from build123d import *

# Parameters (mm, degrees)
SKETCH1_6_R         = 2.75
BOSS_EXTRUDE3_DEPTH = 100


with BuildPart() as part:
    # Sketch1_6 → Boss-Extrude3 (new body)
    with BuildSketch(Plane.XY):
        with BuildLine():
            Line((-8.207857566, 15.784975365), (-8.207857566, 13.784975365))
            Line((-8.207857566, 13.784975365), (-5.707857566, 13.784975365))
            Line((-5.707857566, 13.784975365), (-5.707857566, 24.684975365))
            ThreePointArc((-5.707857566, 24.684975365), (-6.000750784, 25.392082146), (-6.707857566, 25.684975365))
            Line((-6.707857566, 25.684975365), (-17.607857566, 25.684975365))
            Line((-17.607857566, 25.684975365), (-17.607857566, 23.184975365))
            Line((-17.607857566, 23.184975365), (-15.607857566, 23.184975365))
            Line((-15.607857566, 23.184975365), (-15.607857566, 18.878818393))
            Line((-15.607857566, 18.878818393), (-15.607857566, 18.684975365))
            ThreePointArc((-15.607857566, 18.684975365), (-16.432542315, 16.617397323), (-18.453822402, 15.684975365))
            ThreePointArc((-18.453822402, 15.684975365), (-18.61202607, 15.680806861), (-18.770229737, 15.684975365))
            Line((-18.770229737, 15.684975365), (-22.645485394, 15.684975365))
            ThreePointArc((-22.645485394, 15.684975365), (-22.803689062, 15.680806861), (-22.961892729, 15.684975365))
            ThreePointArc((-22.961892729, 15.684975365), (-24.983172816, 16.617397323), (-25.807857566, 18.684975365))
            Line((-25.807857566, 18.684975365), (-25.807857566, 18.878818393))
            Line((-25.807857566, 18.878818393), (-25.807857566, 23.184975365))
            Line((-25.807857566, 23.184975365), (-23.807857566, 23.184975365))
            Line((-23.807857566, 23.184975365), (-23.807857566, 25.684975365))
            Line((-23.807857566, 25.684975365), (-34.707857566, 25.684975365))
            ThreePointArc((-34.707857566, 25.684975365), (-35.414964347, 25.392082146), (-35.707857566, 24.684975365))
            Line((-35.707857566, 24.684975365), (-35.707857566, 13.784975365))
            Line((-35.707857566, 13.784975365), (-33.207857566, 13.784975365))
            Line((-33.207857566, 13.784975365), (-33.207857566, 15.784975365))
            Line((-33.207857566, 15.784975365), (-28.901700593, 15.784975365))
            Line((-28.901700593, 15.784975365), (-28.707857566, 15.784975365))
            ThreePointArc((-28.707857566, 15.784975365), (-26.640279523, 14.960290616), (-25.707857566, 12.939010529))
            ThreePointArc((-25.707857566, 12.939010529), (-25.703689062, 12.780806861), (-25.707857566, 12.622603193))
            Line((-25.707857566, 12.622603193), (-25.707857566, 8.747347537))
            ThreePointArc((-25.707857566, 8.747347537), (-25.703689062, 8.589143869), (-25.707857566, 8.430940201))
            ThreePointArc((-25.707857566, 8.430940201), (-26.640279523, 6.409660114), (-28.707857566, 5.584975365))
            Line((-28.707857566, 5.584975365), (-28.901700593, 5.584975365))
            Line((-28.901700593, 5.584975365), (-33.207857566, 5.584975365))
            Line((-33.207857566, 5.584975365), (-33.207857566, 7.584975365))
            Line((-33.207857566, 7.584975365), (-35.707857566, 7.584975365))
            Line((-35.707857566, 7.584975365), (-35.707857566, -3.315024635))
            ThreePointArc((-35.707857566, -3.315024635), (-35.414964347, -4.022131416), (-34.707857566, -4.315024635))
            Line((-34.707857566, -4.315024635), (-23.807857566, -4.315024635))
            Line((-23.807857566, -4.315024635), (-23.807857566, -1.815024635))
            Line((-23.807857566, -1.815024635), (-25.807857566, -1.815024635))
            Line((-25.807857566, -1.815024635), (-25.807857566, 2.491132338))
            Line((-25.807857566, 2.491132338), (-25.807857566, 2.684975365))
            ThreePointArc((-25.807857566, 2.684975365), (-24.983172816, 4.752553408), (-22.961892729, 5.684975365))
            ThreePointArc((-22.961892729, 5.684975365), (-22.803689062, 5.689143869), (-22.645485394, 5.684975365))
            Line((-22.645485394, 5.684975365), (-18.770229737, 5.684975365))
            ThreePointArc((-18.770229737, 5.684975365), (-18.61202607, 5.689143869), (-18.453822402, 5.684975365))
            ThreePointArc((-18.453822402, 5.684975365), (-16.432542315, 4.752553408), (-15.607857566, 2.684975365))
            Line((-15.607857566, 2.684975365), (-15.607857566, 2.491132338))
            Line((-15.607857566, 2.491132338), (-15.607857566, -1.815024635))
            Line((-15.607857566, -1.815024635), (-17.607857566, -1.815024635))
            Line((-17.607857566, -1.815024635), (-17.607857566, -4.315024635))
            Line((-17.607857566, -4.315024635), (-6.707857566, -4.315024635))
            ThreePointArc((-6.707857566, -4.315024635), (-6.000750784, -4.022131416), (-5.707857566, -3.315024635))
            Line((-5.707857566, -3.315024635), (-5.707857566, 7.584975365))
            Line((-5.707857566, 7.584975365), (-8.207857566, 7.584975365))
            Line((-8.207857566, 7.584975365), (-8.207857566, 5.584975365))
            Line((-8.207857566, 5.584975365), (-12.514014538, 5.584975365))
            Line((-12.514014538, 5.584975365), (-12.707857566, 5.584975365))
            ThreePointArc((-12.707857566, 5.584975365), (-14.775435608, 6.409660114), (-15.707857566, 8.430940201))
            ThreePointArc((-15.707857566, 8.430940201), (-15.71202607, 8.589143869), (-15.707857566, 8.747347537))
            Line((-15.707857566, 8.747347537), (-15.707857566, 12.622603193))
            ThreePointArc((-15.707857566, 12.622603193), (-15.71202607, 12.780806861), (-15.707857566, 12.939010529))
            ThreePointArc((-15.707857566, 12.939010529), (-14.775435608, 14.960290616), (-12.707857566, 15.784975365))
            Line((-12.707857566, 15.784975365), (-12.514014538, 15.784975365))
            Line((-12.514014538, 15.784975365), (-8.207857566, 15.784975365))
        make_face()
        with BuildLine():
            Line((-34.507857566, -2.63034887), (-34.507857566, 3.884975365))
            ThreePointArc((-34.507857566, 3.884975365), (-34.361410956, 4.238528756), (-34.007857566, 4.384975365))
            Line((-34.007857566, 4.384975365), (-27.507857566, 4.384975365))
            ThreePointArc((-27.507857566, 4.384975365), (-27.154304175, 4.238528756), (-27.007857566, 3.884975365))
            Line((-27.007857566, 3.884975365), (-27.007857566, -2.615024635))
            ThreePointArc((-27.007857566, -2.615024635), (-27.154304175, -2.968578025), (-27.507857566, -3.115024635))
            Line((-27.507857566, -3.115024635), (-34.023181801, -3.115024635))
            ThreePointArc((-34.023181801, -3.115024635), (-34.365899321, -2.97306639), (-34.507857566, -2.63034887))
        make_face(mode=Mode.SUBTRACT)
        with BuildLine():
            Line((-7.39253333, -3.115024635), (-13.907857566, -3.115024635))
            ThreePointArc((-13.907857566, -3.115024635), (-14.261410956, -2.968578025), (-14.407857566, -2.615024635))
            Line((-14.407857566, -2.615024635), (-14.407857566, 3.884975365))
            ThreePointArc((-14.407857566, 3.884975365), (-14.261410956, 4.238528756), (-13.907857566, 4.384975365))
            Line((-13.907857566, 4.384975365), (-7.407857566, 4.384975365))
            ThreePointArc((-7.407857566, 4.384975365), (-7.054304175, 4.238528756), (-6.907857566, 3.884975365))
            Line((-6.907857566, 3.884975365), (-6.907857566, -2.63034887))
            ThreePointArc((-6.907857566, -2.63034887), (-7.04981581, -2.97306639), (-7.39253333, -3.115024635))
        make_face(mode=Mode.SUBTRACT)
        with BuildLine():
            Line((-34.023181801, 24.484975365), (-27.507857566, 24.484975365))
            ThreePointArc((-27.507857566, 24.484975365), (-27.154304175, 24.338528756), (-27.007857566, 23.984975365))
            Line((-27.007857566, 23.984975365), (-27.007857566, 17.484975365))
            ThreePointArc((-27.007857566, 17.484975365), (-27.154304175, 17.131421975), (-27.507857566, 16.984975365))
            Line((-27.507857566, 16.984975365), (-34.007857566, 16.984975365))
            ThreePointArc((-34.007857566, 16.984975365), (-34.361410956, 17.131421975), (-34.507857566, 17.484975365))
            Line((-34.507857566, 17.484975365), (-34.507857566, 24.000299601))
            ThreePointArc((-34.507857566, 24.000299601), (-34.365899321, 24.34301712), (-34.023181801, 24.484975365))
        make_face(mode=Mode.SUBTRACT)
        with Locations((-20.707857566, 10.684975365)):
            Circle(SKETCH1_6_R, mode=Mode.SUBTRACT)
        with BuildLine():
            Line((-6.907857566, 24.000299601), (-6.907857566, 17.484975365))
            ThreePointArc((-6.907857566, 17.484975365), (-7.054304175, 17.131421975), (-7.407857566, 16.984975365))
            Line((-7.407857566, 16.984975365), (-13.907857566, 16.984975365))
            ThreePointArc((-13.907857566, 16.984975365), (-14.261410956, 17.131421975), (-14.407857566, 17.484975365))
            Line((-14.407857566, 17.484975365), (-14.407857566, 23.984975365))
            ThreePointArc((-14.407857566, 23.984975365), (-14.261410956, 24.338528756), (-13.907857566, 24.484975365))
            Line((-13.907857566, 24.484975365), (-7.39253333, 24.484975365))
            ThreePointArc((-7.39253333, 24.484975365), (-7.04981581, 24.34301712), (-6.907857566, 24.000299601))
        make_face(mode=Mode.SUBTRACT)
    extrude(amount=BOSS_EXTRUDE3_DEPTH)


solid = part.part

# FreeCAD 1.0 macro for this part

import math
import FreeCAD as App
import Part
import Sketcher
from FreeCAD import Vector

doc = App.newDocument("Part")
body = doc.addObject("PartDesign::Body", "Body")

# Sketch on XY plane
sketch1 = doc.addObject("Sketcher::SketchObject", "Sketch")
body.addObject(sketch1)
sketch1.AttachmentSupport = (doc.XY_Plane, [""])
sketch1.MapMode = "FlatFace"
sketch1.addGeometry(Part.LineSegment(Vector(-8.21, 15.78, 0), Vector(-8.21, 13.78, 0)), False)
sketch1.addGeometry(Part.LineSegment(Vector(-8.21, 13.78, 0), Vector(-5.71, 13.78, 0)), False)
sketch1.addGeometry(Part.LineSegment(Vector(-5.71, 13.78, 0), Vector(-5.71, 24.68, 0)), False)
sketch1.addGeometry(Part.ArcOfCircle(Part.Circle(Vector(-6.71, 24.68, 0), Vector(0, 0, 1), 1), math.radians(0), math.radians(90)), False)
sketch1.addGeometry(Part.LineSegment(Vector(-6.71, 25.68, 0), Vector(-17.61, 25.68, 0)), False)
sketch1.addGeometry(Part.LineSegment(Vector(-17.61, 25.68, 0), Vector(-17.61, 23.18, 0)), False)
sketch1.addGeometry(Part.LineSegment(Vector(-17.61, 23.18, 0), Vector(-15.61, 23.18, 0)), False)
sketch1.addGeometry(Part.LineSegment(Vector(-15.61, 23.18, 0), Vector(-15.61, 18.68, 0)), False)
sketch1.addGeometry(Part.ArcOfCircle(Part.Circle(Vector(-18.61, 18.68, 0), Vector(0, 0, 1), 3), math.radians(-87), math.radians(0)), False)
sketch1.addGeometry(Part.ArcOfCircle(Part.Circle(Vector(-18.61, 18.68, 0), Vector(0, 0, 1), 3), math.radians(-93.02), math.radians(-86.98)), False)
sketch1.addGeometry(Part.LineSegment(Vector(-18.77, 15.68, 0), Vector(-22.65, 15.68, 0)), False)
sketch1.addGeometry(Part.ArcOfCircle(Part.Circle(Vector(-22.8, 18.68, 0), Vector(0, 0, 1), 3), math.radians(-93.02), math.radians(-86.98)), False)
sketch1.addGeometry(Part.ArcOfCircle(Part.Circle(Vector(-22.8, 18.68, 0), Vector(0, 0, 1), 3), math.radians(-180), math.radians(-93)), False)
sketch1.addGeometry(Part.LineSegment(Vector(-25.81, 18.68, 0), Vector(-25.81, 23.18, 0)), False)
sketch1.addGeometry(Part.LineSegment(Vector(-25.81, 23.18, 0), Vector(-23.81, 23.18, 0)), False)
sketch1.addGeometry(Part.LineSegment(Vector(-23.81, 23.18, 0), Vector(-23.81, 25.68, 0)), False)
sketch1.addGeometry(Part.LineSegment(Vector(-23.81, 25.68, 0), Vector(-34.71, 25.68, 0)), False)
sketch1.addGeometry(Part.ArcOfCircle(Part.Circle(Vector(-34.71, 24.68, 0), Vector(0, 0, 1), 1), math.radians(90), math.radians(180)), False)
sketch1.addGeometry(Part.LineSegment(Vector(-35.71, 24.68, 0), Vector(-35.71, 13.78, 0)), False)
sketch1.addGeometry(Part.LineSegment(Vector(-35.71, 13.78, 0), Vector(-33.21, 13.78, 0)), False)
sketch1.addGeometry(Part.LineSegment(Vector(-33.21, 13.78, 0), Vector(-33.21, 15.78, 0)), False)
sketch1.addGeometry(Part.LineSegment(Vector(-33.21, 15.78, 0), Vector(-28.71, 15.78, 0)), False)
sketch1.addGeometry(Part.ArcOfCircle(Part.Circle(Vector(-28.71, 12.78, 0), Vector(0, 0, 1), 3), math.radians(3), math.radians(90)), False)
sketch1.addGeometry(Part.ArcOfCircle(Part.Circle(Vector(-28.71, 12.78, 0), Vector(0, 0, 1), 3), math.radians(-3.02), math.radians(3.02)), False)
sketch1.addGeometry(Part.LineSegment(Vector(-25.71, 12.62, 0), Vector(-25.71, 8.75, 0)), False)
sketch1.addGeometry(Part.ArcOfCircle(Part.Circle(Vector(-28.71, 8.59, 0), Vector(0, 0, 1), 3), math.radians(-3.02), math.radians(3.02)), False)
sketch1.addGeometry(Part.ArcOfCircle(Part.Circle(Vector(-28.71, 8.59, 0), Vector(0, 0, 1), 3), math.radians(-90), math.radians(-3)), False)
sketch1.addGeometry(Part.LineSegment(Vector(-28.71, 5.58, 0), Vector(-33.21, 5.58, 0)), False)
sketch1.addGeometry(Part.LineSegment(Vector(-33.21, 5.58, 0), Vector(-33.21, 7.58, 0)), False)
sketch1.addGeometry(Part.LineSegment(Vector(-33.21, 7.58, 0), Vector(-35.71, 7.58, 0)), False)
sketch1.addGeometry(Part.LineSegment(Vector(-35.71, 7.58, 0), Vector(-35.71, -3.32, 0)), False)
sketch1.addGeometry(Part.ArcOfCircle(Part.Circle(Vector(-34.71, -3.32, 0), Vector(0, 0, 1), 1), math.radians(-180), math.radians(-90)), False)
sketch1.addGeometry(Part.LineSegment(Vector(-34.71, -4.32, 0), Vector(-23.81, -4.32, 0)), False)
sketch1.addGeometry(Part.LineSegment(Vector(-23.81, -4.32, 0), Vector(-23.81, -1.82, 0)), False)
sketch1.addGeometry(Part.LineSegment(Vector(-23.81, -1.82, 0), Vector(-25.81, -1.82, 0)), False)
sketch1.addGeometry(Part.LineSegment(Vector(-25.81, -1.82, 0), Vector(-25.81, 2.68, 0)), False)
sketch1.addGeometry(Part.ArcOfCircle(Part.Circle(Vector(-22.8, 2.68, 0), Vector(0, 0, 1), 3), math.radians(93), math.radians(180)), False)
sketch1.addGeometry(Part.ArcOfCircle(Part.Circle(Vector(-22.8, 2.68, 0), Vector(0, 0, 1), 3), math.radians(86.98), math.radians(93.02)), False)
sketch1.addGeometry(Part.LineSegment(Vector(-22.65, 5.68, 0), Vector(-18.77, 5.68, 0)), False)
sketch1.addGeometry(Part.ArcOfCircle(Part.Circle(Vector(-18.61, 2.68, 0), Vector(0, 0, 1), 3), math.radians(86.98), math.radians(93.02)), False)
sketch1.addGeometry(Part.ArcOfCircle(Part.Circle(Vector(-18.61, 2.68, 0), Vector(0, 0, 1), 3), math.radians(0), math.radians(87)), False)
sketch1.addGeometry(Part.LineSegment(Vector(-15.61, 2.68, 0), Vector(-15.61, -1.82, 0)), False)
sketch1.addGeometry(Part.LineSegment(Vector(-15.61, -1.82, 0), Vector(-17.61, -1.82, 0)), False)
sketch1.addGeometry(Part.LineSegment(Vector(-17.61, -1.82, 0), Vector(-17.61, -4.32, 0)), False)
sketch1.addGeometry(Part.LineSegment(Vector(-17.61, -4.32, 0), Vector(-6.71, -4.32, 0)), False)
sketch1.addGeometry(Part.ArcOfCircle(Part.Circle(Vector(-6.71, -3.32, 0), Vector(0, 0, 1), 1), math.radians(-90), math.radians(0)), False)
sketch1.addGeometry(Part.LineSegment(Vector(-5.71, -3.32, 0), Vector(-5.71, 7.58, 0)), False)
sketch1.addGeometry(Part.LineSegment(Vector(-5.71, 7.58, 0), Vector(-8.21, 7.58, 0)), False)
sketch1.addGeometry(Part.LineSegment(Vector(-8.21, 7.58, 0), Vector(-8.21, 5.58, 0)), False)
sketch1.addGeometry(Part.LineSegment(Vector(-8.21, 5.58, 0), Vector(-12.71, 5.58, 0)), False)
sketch1.addGeometry(Part.ArcOfCircle(Part.Circle(Vector(-12.71, 8.59, 0), Vector(0, 0, 1), 3), math.radians(-177), math.radians(-90)), False)
sketch1.addGeometry(Part.ArcOfCircle(Part.Circle(Vector(-12.71, 8.59, 0), Vector(0, 0, 1), 3), math.radians(176.98), math.radians(183.02)), False)
sketch1.addGeometry(Part.LineSegment(Vector(-15.71, 8.75, 0), Vector(-15.71, 12.62, 0)), False)
sketch1.addGeometry(Part.ArcOfCircle(Part.Circle(Vector(-12.71, 12.78, 0), Vector(0, 0, 1), 3), math.radians(176.98), math.radians(183.02)), False)
sketch1.addGeometry(Part.ArcOfCircle(Part.Circle(Vector(-12.71, 12.78, 0), Vector(0, 0, 1), 3), math.radians(90), math.radians(177)), False)
sketch1.addGeometry(Part.LineSegment(Vector(-12.71, 15.78, 0), Vector(-8.21, 15.78, 0)), False)
sketch1.addGeometry(Part.ArcOfCircle(Part.Circle(Vector(-34.02, -2.63, 0), Vector(0, 0, 1), 0.48), math.radians(180), math.radians(270)), False)
sketch1.addGeometry(Part.LineSegment(Vector(-34.51, -2.63, 0), Vector(-34.51, 3.88, 0)), False)
sketch1.addGeometry(Part.ArcOfCircle(Part.Circle(Vector(-34.01, 3.88, 0), Vector(0, 0, 1), 0.5), math.radians(90), math.radians(180)), False)
sketch1.addGeometry(Part.LineSegment(Vector(-34.01, 4.38, 0), Vector(-27.51, 4.38, 0)), False)
sketch1.addGeometry(Part.ArcOfCircle(Part.Circle(Vector(-27.51, 3.88, 0), Vector(0, 0, 1), 0.5), math.radians(0), math.radians(90)), False)
sketch1.addGeometry(Part.LineSegment(Vector(-27.01, 3.88, 0), Vector(-27.01, -2.62, 0)), False)
sketch1.addGeometry(Part.ArcOfCircle(Part.Circle(Vector(-27.51, -2.62, 0), Vector(0, 0, 1), 0.5), math.radians(-90), math.radians(0)), False)
sketch1.addGeometry(Part.LineSegment(Vector(-27.51, -3.12, 0), Vector(-34.02, -3.12, 0)), False)
sketch1.addGeometry(Part.ArcOfCircle(Part.Circle(Vector(-7.39, -2.63, 0), Vector(0, 0, 1), 0.48), math.radians(-90), math.radians(0)), False)
sketch1.addGeometry(Part.LineSegment(Vector(-7.39, -3.12, 0), Vector(-13.91, -3.12, 0)), False)
sketch1.addGeometry(Part.ArcOfCircle(Part.Circle(Vector(-13.91, -2.62, 0), Vector(0, 0, 1), 0.5), math.radians(-180), math.radians(-90)), False)
sketch1.addGeometry(Part.LineSegment(Vector(-14.41, -2.62, 0), Vector(-14.41, 3.88, 0)), False)
sketch1.addGeometry(Part.ArcOfCircle(Part.Circle(Vector(-13.91, 3.88, 0), Vector(0, 0, 1), 0.5), math.radians(90), math.radians(180)), False)
sketch1.addGeometry(Part.LineSegment(Vector(-13.91, 4.38, 0), Vector(-7.41, 4.38, 0)), False)
sketch1.addGeometry(Part.ArcOfCircle(Part.Circle(Vector(-7.41, 3.88, 0), Vector(0, 0, 1), 0.5), math.radians(0), math.radians(90)), False)
sketch1.addGeometry(Part.LineSegment(Vector(-6.91, 3.88, 0), Vector(-6.91, -2.63, 0)), False)
sketch1.addGeometry(Part.Circle(Vector(-20.71, 10.68, 0), Vector(0, 0, 1), 2.75), False)
sketch1.addGeometry(Part.ArcOfCircle(Part.Circle(Vector(-34.02, 24, 0), Vector(0, 0, 1), 0.48), math.radians(90), math.radians(180)), False)
sketch1.addGeometry(Part.LineSegment(Vector(-34.02, 24.48, 0), Vector(-27.51, 24.48, 0)), False)
sketch1.addGeometry(Part.ArcOfCircle(Part.Circle(Vector(-27.51, 23.98, 0), Vector(0, 0, 1), 0.5), math.radians(0), math.radians(90)), False)
sketch1.addGeometry(Part.LineSegment(Vector(-27.01, 23.98, 0), Vector(-27.01, 17.48, 0)), False)
sketch1.addGeometry(Part.ArcOfCircle(Part.Circle(Vector(-27.51, 17.48, 0), Vector(0, 0, 1), 0.5), math.radians(-90), math.radians(0)), False)
sketch1.addGeometry(Part.LineSegment(Vector(-27.51, 16.98, 0), Vector(-34.01, 16.98, 0)), False)
sketch1.addGeometry(Part.ArcOfCircle(Part.Circle(Vector(-34.01, 17.48, 0), Vector(0, 0, 1), 0.5), math.radians(-180), math.radians(-90)), False)
sketch1.addGeometry(Part.LineSegment(Vector(-34.51, 17.48, 0), Vector(-34.51, 24, 0)), False)
sketch1.addGeometry(Part.ArcOfCircle(Part.Circle(Vector(-7.39, 24, 0), Vector(0, 0, 1), 0.48), math.radians(0), math.radians(90)), False)
sketch1.addGeometry(Part.LineSegment(Vector(-6.91, 24, 0), Vector(-6.91, 17.48, 0)), False)
sketch1.addGeometry(Part.ArcOfCircle(Part.Circle(Vector(-7.41, 17.48, 0), Vector(0, 0, 1), 0.5), math.radians(-90), math.radians(0)), False)
sketch1.addGeometry(Part.LineSegment(Vector(-7.41, 16.98, 0), Vector(-13.91, 16.98, 0)), False)
sketch1.addGeometry(Part.ArcOfCircle(Part.Circle(Vector(-13.91, 17.48, 0), Vector(0, 0, 1), 0.5), math.radians(-180), math.radians(-90)), False)
sketch1.addGeometry(Part.LineSegment(Vector(-14.41, 17.48, 0), Vector(-14.41, 23.98, 0)), False)
sketch1.addGeometry(Part.ArcOfCircle(Part.Circle(Vector(-13.91, 23.98, 0), Vector(0, 0, 1), 0.5), math.radians(90), math.radians(180)), False)
sketch1.addGeometry(Part.LineSegment(Vector(-13.91, 24.48, 0), Vector(-7.39, 24.48, 0)), False)
sketch1.addConstraint(Sketcher.Constraint("Coincident", 0, 2, 1, 1))
sketch1.addConstraint(Sketcher.Constraint("Coincident", 1, 2, 2, 1))
sketch1.addConstraint(Sketcher.Constraint("Tangent", 2, 2, 3, 1))
sketch1.addConstraint(Sketcher.Constraint("Tangent", 3, 2, 4, 1))
sketch1.addConstraint(Sketcher.Constraint("Coincident", 4, 2, 5, 1))
sketch1.addConstraint(Sketcher.Constraint("Coincident", 5, 2, 6, 1))
sketch1.addConstraint(Sketcher.Constraint("Coincident", 6, 2, 7, 1))
sketch1.addConstraint(Sketcher.Constraint("Tangent", 7, 2, 8, 2))
sketch1.addConstraint(Sketcher.Constraint("Tangent", 8, 1, 9, 2))
sketch1.addConstraint(Sketcher.Constraint("Coincident", 9, 1, 10, 1))
sketch1.addConstraint(Sketcher.Constraint("Coincident", 10, 2, 11, 2))
sketch1.addConstraint(Sketcher.Constraint("Tangent", 11, 1, 12, 2))
sketch1.addConstraint(Sketcher.Constraint("Tangent", 12, 1, 13, 1))
sketch1.addConstraint(Sketcher.Constraint("Coincident", 13, 2, 14, 1))
sketch1.addConstraint(Sketcher.Constraint("Coincident", 14, 2, 15, 1))
sketch1.addConstraint(Sketcher.Constraint("Coincident", 15, 2, 16, 1))
sketch1.addConstraint(Sketcher.Constraint("Tangent", 16, 2, 17, 1))
sketch1.addConstraint(Sketcher.Constraint("Tangent", 17, 2, 18, 1))
sketch1.addConstraint(Sketcher.Constraint("Coincident", 18, 2, 19, 1))
sketch1.addConstraint(Sketcher.Constraint("Coincident", 19, 2, 20, 1))
sketch1.addConstraint(Sketcher.Constraint("Coincident", 20, 2, 21, 1))
sketch1.addConstraint(Sketcher.Constraint("Tangent", 21, 2, 22, 2))
sketch1.addConstraint(Sketcher.Constraint("Tangent", 22, 1, 23, 2))
sketch1.addConstraint(Sketcher.Constraint("Coincident", 23, 1, 24, 1))
sketch1.addConstraint(Sketcher.Constraint("Coincident", 24, 2, 25, 2))
sketch1.addConstraint(Sketcher.Constraint("Tangent", 25, 1, 26, 2))
sketch1.addConstraint(Sketcher.Constraint("Tangent", 26, 1, 27, 1))
sketch1.addConstraint(Sketcher.Constraint("Coincident", 27, 2, 28, 1))
sketch1.addConstraint(Sketcher.Constraint("Coincident", 28, 2, 29, 1))
sketch1.addConstraint(Sketcher.Constraint("Coincident", 29, 2, 30, 1))
sketch1.addConstraint(Sketcher.Constraint("Tangent", 30, 2, 31, 1))
sketch1.addConstraint(Sketcher.Constraint("Tangent", 31, 2, 32, 1))
sketch1.addConstraint(Sketcher.Constraint("Coincident", 32, 2, 33, 1))
sketch1.addConstraint(Sketcher.Constraint("Coincident", 33, 2, 34, 1))
sketch1.addConstraint(Sketcher.Constraint("Coincident", 34, 2, 35, 1))
sketch1.addConstraint(Sketcher.Constraint("Tangent", 35, 2, 36, 2))
sketch1.addConstraint(Sketcher.Constraint("Tangent", 36, 1, 37, 2))
sketch1.addConstraint(Sketcher.Constraint("Coincident", 37, 1, 38, 1))
sketch1.addConstraint(Sketcher.Constraint("Coincident", 38, 2, 39, 2))
sketch1.addConstraint(Sketcher.Constraint("Tangent", 39, 1, 40, 2))
sketch1.addConstraint(Sketcher.Constraint("Tangent", 40, 1, 41, 1))
sketch1.addConstraint(Sketcher.Constraint("Coincident", 41, 2, 42, 1))
sketch1.addConstraint(Sketcher.Constraint("Coincident", 42, 2, 43, 1))
sketch1.addConstraint(Sketcher.Constraint("Coincident", 43, 2, 44, 1))
sketch1.addConstraint(Sketcher.Constraint("Tangent", 44, 2, 45, 1))
sketch1.addConstraint(Sketcher.Constraint("Tangent", 45, 2, 46, 1))
sketch1.addConstraint(Sketcher.Constraint("Coincident", 46, 2, 47, 1))
sketch1.addConstraint(Sketcher.Constraint("Coincident", 47, 2, 48, 1))
sketch1.addConstraint(Sketcher.Constraint("Coincident", 48, 2, 49, 1))
sketch1.addConstraint(Sketcher.Constraint("Tangent", 49, 2, 50, 2))
sketch1.addConstraint(Sketcher.Constraint("Tangent", 50, 1, 51, 2))
sketch1.addConstraint(Sketcher.Constraint("Coincident", 51, 1, 52, 1))
sketch1.addConstraint(Sketcher.Constraint("Coincident", 52, 2, 53, 2))
sketch1.addConstraint(Sketcher.Constraint("Tangent", 53, 1, 54, 2))
sketch1.addConstraint(Sketcher.Constraint("Tangent", 54, 1, 55, 1))
sketch1.addConstraint(Sketcher.Constraint("Coincident", 55, 2, 0, 1))
sketch1.addConstraint(Sketcher.Constraint("Tangent", 56, 1, 57, 1))
sketch1.addConstraint(Sketcher.Constraint("Tangent", 57, 2, 58, 2))
sketch1.addConstraint(Sketcher.Constraint("Tangent", 58, 1, 59, 1))
sketch1.addConstraint(Sketcher.Constraint("Tangent", 59, 2, 60, 2))
sketch1.addConstraint(Sketcher.Constraint("Tangent", 60, 1, 61, 1))
sketch1.addConstraint(Sketcher.Constraint("Tangent", 61, 2, 62, 2))
sketch1.addConstraint(Sketcher.Constraint("Tangent", 62, 1, 63, 1))
sketch1.addConstraint(Sketcher.Constraint("Tangent", 63, 2, 56, 2))
sketch1.addConstraint(Sketcher.Constraint("Tangent", 64, 1, 65, 1))
sketch1.addConstraint(Sketcher.Constraint("Tangent", 65, 2, 66, 2))
sketch1.addConstraint(Sketcher.Constraint("Tangent", 66, 1, 67, 1))
sketch1.addConstraint(Sketcher.Constraint("Tangent", 67, 2, 68, 2))
sketch1.addConstraint(Sketcher.Constraint("Tangent", 68, 1, 69, 1))
sketch1.addConstraint(Sketcher.Constraint("Tangent", 69, 2, 70, 2))
sketch1.addConstraint(Sketcher.Constraint("Tangent", 70, 1, 71, 1))
sketch1.addConstraint(Sketcher.Constraint("Tangent", 71, 2, 64, 2))
sketch1.addConstraint(Sketcher.Constraint("Tangent", 73, 1, 74, 1))
sketch1.addConstraint(Sketcher.Constraint("Tangent", 74, 2, 75, 2))
sketch1.addConstraint(Sketcher.Constraint("Tangent", 75, 1, 76, 1))
sketch1.addConstraint(Sketcher.Constraint("Tangent", 76, 2, 77, 2))
sketch1.addConstraint(Sketcher.Constraint("Tangent", 77, 1, 78, 1))
sketch1.addConstraint(Sketcher.Constraint("Tangent", 78, 2, 79, 2))
sketch1.addConstraint(Sketcher.Constraint("Tangent", 79, 1, 80, 1))
sketch1.addConstraint(Sketcher.Constraint("Tangent", 80, 2, 73, 2))
sketch1.addConstraint(Sketcher.Constraint("Tangent", 81, 1, 82, 1))
sketch1.addConstraint(Sketcher.Constraint("Tangent", 82, 2, 83, 2))
sketch1.addConstraint(Sketcher.Constraint("Tangent", 83, 1, 84, 1))
sketch1.addConstraint(Sketcher.Constraint("Tangent", 84, 2, 85, 2))
sketch1.addConstraint(Sketcher.Constraint("Tangent", 85, 1, 86, 1))
sketch1.addConstraint(Sketcher.Constraint("Tangent", 86, 2, 87, 2))
sketch1.addConstraint(Sketcher.Constraint("Tangent", 87, 1, 88, 1))
sketch1.addConstraint(Sketcher.Constraint("Tangent", 88, 2, 81, 2))
sketch1.addConstraint(Sketcher.Constraint("Vertical", 0))
sketch1.addConstraint(Sketcher.Constraint("Horizontal", 1))
sketch1.addConstraint(Sketcher.Constraint("Vertical", 2))
sketch1.addConstraint(Sketcher.Constraint("Horizontal", 4))
sketch1.addConstraint(Sketcher.Constraint("Vertical", 5))
sketch1.addConstraint(Sketcher.Constraint("Horizontal", 6))
sketch1.addConstraint(Sketcher.Constraint("Vertical", 7))
sketch1.addConstraint(Sketcher.Constraint("Horizontal", 10))
sketch1.addConstraint(Sketcher.Constraint("Vertical", 13))
sketch1.addConstraint(Sketcher.Constraint("Horizontal", 14))
sketch1.addConstraint(Sketcher.Constraint("Vertical", 15))
sketch1.addConstraint(Sketcher.Constraint("Horizontal", 16))
sketch1.addConstraint(Sketcher.Constraint("Vertical", 18))
sketch1.addConstraint(Sketcher.Constraint("Horizontal", 19))
sketch1.addConstraint(Sketcher.Constraint("Vertical", 20))
sketch1.addConstraint(Sketcher.Constraint("Horizontal", 21))
sketch1.addConstraint(Sketcher.Constraint("Vertical", 24))
sketch1.addConstraint(Sketcher.Constraint("Horizontal", 27))
sketch1.addConstraint(Sketcher.Constraint("Vertical", 28))
sketch1.addConstraint(Sketcher.Constraint("Horizontal", 29))
sketch1.addConstraint(Sketcher.Constraint("Vertical", 30))
sketch1.addConstraint(Sketcher.Constraint("Horizontal", 32))
sketch1.addConstraint(Sketcher.Constraint("Vertical", 33))
sketch1.addConstraint(Sketcher.Constraint("Horizontal", 34))
sketch1.addConstraint(Sketcher.Constraint("Vertical", 35))
sketch1.addConstraint(Sketcher.Constraint("Horizontal", 38))
sketch1.addConstraint(Sketcher.Constraint("Vertical", 41))
sketch1.addConstraint(Sketcher.Constraint("Horizontal", 42))
sketch1.addConstraint(Sketcher.Constraint("Vertical", 43))
sketch1.addConstraint(Sketcher.Constraint("Horizontal", 44))
sketch1.addConstraint(Sketcher.Constraint("Vertical", 46))
sketch1.addConstraint(Sketcher.Constraint("Horizontal", 47))
sketch1.addConstraint(Sketcher.Constraint("Vertical", 48))
sketch1.addConstraint(Sketcher.Constraint("Horizontal", 49))
sketch1.addConstraint(Sketcher.Constraint("Vertical", 52))
sketch1.addConstraint(Sketcher.Constraint("Horizontal", 55))
sketch1.addConstraint(Sketcher.Constraint("Vertical", 57))
sketch1.addConstraint(Sketcher.Constraint("Horizontal", 59))
sketch1.addConstraint(Sketcher.Constraint("Vertical", 61))
sketch1.addConstraint(Sketcher.Constraint("Horizontal", 63))
sketch1.addConstraint(Sketcher.Constraint("Horizontal", 65))
sketch1.addConstraint(Sketcher.Constraint("Vertical", 67))
sketch1.addConstraint(Sketcher.Constraint("Horizontal", 69))
sketch1.addConstraint(Sketcher.Constraint("Vertical", 71))
sketch1.addConstraint(Sketcher.Constraint("Horizontal", 74))
sketch1.addConstraint(Sketcher.Constraint("Vertical", 76))
sketch1.addConstraint(Sketcher.Constraint("Horizontal", 78))
sketch1.addConstraint(Sketcher.Constraint("Vertical", 80))
sketch1.addConstraint(Sketcher.Constraint("Vertical", 82))
sketch1.addConstraint(Sketcher.Constraint("Horizontal", 84))
sketch1.addConstraint(Sketcher.Constraint("Vertical", 86))
sketch1.addConstraint(Sketcher.Constraint("Horizontal", 88))
sketch1.addConstraint(Sketcher.Constraint("Equal", 8, 9))
sketch1.addConstraint(Sketcher.Constraint("Equal", 9, 11))
sketch1.addConstraint(Sketcher.Constraint("Equal", 11, 12))
sketch1.addConstraint(Sketcher.Constraint("Equal", 3, 17))
sketch1.addConstraint(Sketcher.Constraint("Equal", 12, 22))
sketch1.addConstraint(Sketcher.Constraint("Equal", 22, 23))
sketch1.addConstraint(Sketcher.Constraint("Equal", 23, 25))
sketch1.addConstraint(Sketcher.Constraint("Equal", 25, 26))
sketch1.addConstraint(Sketcher.Constraint("Equal", 17, 31))
sketch1.addConstraint(Sketcher.Constraint("Equal", 26, 36))
sketch1.addConstraint(Sketcher.Constraint("Equal", 36, 37))
sketch1.addConstraint(Sketcher.Constraint("Equal", 37, 39))
sketch1.addConstraint(Sketcher.Constraint("Equal", 39, 40))
sketch1.addConstraint(Sketcher.Constraint("Equal", 31, 45))
sketch1.addConstraint(Sketcher.Constraint("Equal", 40, 50))
sketch1.addConstraint(Sketcher.Constraint("Equal", 50, 51))
sketch1.addConstraint(Sketcher.Constraint("Equal", 51, 53))
sketch1.addConstraint(Sketcher.Constraint("Equal", 53, 54))
sketch1.addConstraint(Sketcher.Constraint("Equal", 58, 60))
sketch1.addConstraint(Sketcher.Constraint("Equal", 60, 62))
sketch1.addConstraint(Sketcher.Constraint("Equal", 56, 64))
sketch1.addConstraint(Sketcher.Constraint("Equal", 62, 66))
sketch1.addConstraint(Sketcher.Constraint("Equal", 66, 68))
sketch1.addConstraint(Sketcher.Constraint("Equal", 68, 70))
sketch1.addConstraint(Sketcher.Constraint("Equal", 64, 73))
sketch1.addConstraint(Sketcher.Constraint("Equal", 70, 75))
sketch1.addConstraint(Sketcher.Constraint("Equal", 75, 77))
sketch1.addConstraint(Sketcher.Constraint("Equal", 77, 79))
sketch1.addConstraint(Sketcher.Constraint("Equal", 73, 81))
sketch1.addConstraint(Sketcher.Constraint("Equal", 79, 83))
sketch1.addConstraint(Sketcher.Constraint("Equal", 83, 85))
sketch1.addConstraint(Sketcher.Constraint("Equal", 85, 87))
sketch1.addConstraint(Sketcher.Constraint("Horizontal", 9, 3, 11, 3))
sketch1.addConstraint(Sketcher.Constraint("Horizontal", 3, 3, 17, 3))
sketch1.addConstraint(Sketcher.Constraint("Horizontal", 37, 3, 39, 3))
sketch1.addConstraint(Sketcher.Constraint("Horizontal", 31, 3, 45, 3))
sketch1.addConstraint(Sketcher.Constraint("Horizontal", 26, 3, 50, 3))
sketch1.addConstraint(Sketcher.Constraint("Horizontal", 23, 3, 53, 3))
sketch1.addConstraint(Sketcher.Constraint("Horizontal", 56, 3, 64, 3))
sketch1.addConstraint(Sketcher.Constraint("Horizontal", 60, 3, 68, 3))
sketch1.addConstraint(Sketcher.Constraint("Horizontal", 73, 3, 81, 3))
sketch1.addConstraint(Sketcher.Constraint("Horizontal", 79, 3, 83, 3))
sketch1.addConstraint(Sketcher.Constraint("Horizontal", 8, 1, 9, 1))
sketch1.addConstraint(Sketcher.Constraint("Horizontal", 10, 2, 11, 1))
sketch1.addConstraint(Sketcher.Constraint("Horizontal", 6, 2, 13, 2))
sketch1.addConstraint(Sketcher.Constraint("Horizontal", 1, 2, 18, 2))
sketch1.addConstraint(Sketcher.Constraint("Horizontal", 36, 1, 37, 1))
sketch1.addConstraint(Sketcher.Constraint("Horizontal", 38, 2, 39, 1))
sketch1.addConstraint(Sketcher.Constraint("Horizontal", 34, 2, 41, 2))
sketch1.addConstraint(Sketcher.Constraint("Horizontal", 29, 2, 46, 2))
sketch1.addConstraint(Sketcher.Constraint("Horizontal", 25, 1, 50, 1))
sketch1.addConstraint(Sketcher.Constraint("Horizontal", 24, 2, 51, 1))
sketch1.addConstraint(Sketcher.Constraint("Horizontal", 23, 1, 52, 2))
sketch1.addConstraint(Sketcher.Constraint("Horizontal", 22, 1, 53, 1))
sketch1.addConstraint(Sketcher.Constraint("Vertical", 23, 3, 25, 3))
sketch1.addConstraint(Sketcher.Constraint("Vertical", 17, 3, 31, 3))
sketch1.addConstraint(Sketcher.Constraint("Vertical", 12, 3, 36, 3))
sketch1.addConstraint(Sketcher.Constraint("Vertical", 9, 3, 39, 3))
sketch1.addConstraint(Sketcher.Constraint("Vertical", 3, 3, 45, 3))
sketch1.addConstraint(Sketcher.Constraint("Vertical", 56, 3, 73, 3))
sketch1.addConstraint(Sketcher.Constraint("Vertical", 62, 3, 75, 3))
sketch1.addConstraint(Sketcher.Constraint("Vertical", 64, 3, 81, 3))
sketch1.addConstraint(Sketcher.Constraint("Vertical", 68, 3, 85, 3))
sketch1.addConstraint(Sketcher.Constraint("Vertical", 22, 1, 23, 1))
sketch1.addConstraint(Sketcher.Constraint("Vertical", 24, 2, 25, 1))
sketch1.addConstraint(Sketcher.Constraint("Vertical", 20, 2, 27, 2))
sketch1.addConstraint(Sketcher.Constraint("Vertical", 15, 2, 32, 2))
sketch1.addConstraint(Sketcher.Constraint("Vertical", 11, 1, 36, 1))
sketch1.addConstraint(Sketcher.Constraint("Vertical", 5, 2, 42, 2))
sketch1.addConstraint(Sketcher.Constraint("Vertical", 0, 2, 47, 2))
sketch1.addConstraint(Sketcher.Constraint("Equal", 6, 14))
sketch1.addConstraint(Sketcher.Constraint("Equal", 4, 16))
sketch1.addConstraint(Sketcher.Constraint("Equal", 1, 19))
sketch1.addConstraint(Sketcher.Constraint("Equal", 27, 49))
sketch1.addConstraint(Sketcher.Constraint("Equal", 63, 65))
sketch1.addConstraint(Sketcher.Constraint("Equal", 42, 0))
sketch1.addConstraint(Sketcher.Constraint("Equal", 44, 2))
sketch1.addConstraint(Sketcher.Constraint("Equal", 47, 5))
sketch1.addConstraint(Sketcher.Constraint("Equal", 55, 7))
sketch1.addConstraint(Sketcher.Constraint("Equal", 38, 24))
sketch1.addConstraint(Sketcher.Constraint("Equal", 20, 28))
sketch1.addConstraint(Sketcher.Constraint("Equal", 18, 30))
sketch1.addConstraint(Sketcher.Constraint("Equal", 15, 33))
sketch1.addConstraint(Sketcher.Constraint("Equal", 13, 35))
sketch1.addConstraint(Sketcher.Constraint("Equal", 88, 57))
sketch1.addConstraint(Sketcher.Constraint("Equal", 67, 76))
sketch1.addConstraint(Sketcher.Constraint("Radius", 3, 1.0))
sketch1.addConstraint(Sketcher.Constraint("Diameter", 72, 5.5))
sketch1.addConstraint(Sketcher.Constraint("Radius", 58, 0.5))
sketch1.addConstraint(Sketcher.Constraint("DistanceX", 6, 1, 6, 2, 2.0))
sketch1.addConstraint(Sketcher.Constraint("DistanceX", 1, 1, 1, 2, 2.5))
sketch1.addConstraint(Sketcher.Constraint("DistanceX", 4, 2, 4, 1, 10.9))
sketch1.addConstraint(Sketcher.Constraint("DistanceX", 21, 1, 21, 2, 4.5))
sketch1.addConstraint(Sketcher.Constraint("DistanceX", 59, 1, 59, 2, 6.5))
sketch1.addConstraint(Sketcher.Constraint("Radius", 8, 3.004169))
sketch1.addConstraint(Sketcher.Constraint("Radius", 56, 0.484676))
sketch1.addConstraint(Sketcher.Constraint("DistanceY", -1, 1, 73, 3, 24.0003))
sketch1.addConstraint(Sketcher.Constraint("DistanceX", 10, 2, 10, 1, 3.875256))
sketch1.addConstraint(Sketcher.Constraint("DistanceX", 11, 3, -1, 1, 22.803689))
sketch1.addConstraint(Sketcher.Constraint("DistanceX", 56, 3, -1, 1, 34.023182))
sketch1.addConstraint(Sketcher.Constraint("DistanceY", 56, 3, -1, 1, 2.630349))
sketch1.addConstraint(Sketcher.Constraint("DistanceX", 9, 1, -1, 1, 18.77023))
sketch1.addConstraint(Sketcher.Constraint("DistanceY", -1, 1, 22, 1, 12.939011))
sketch1.addConstraint(Sketcher.Constraint("DistanceY", -1, 1, 25, 1, 8.43094))
sketch1.addConstraint(Sketcher.Constraint("DistanceX", 64, 3, -1, 1, 7.392533))
sketch1.addConstraint(Sketcher.Constraint("DistanceX", 72, 3, -1, 1, 20.707858))
sketch1.addConstraint(Sketcher.Constraint("DistanceY", -1, 1, 72, 3, 10.684975))
pad1 = doc.addObject("PartDesign::Pad", "Pad")
body.addObject(pad1)
pad1.Profile = sketch1
pad1.Length = 100

doc.recompute()
